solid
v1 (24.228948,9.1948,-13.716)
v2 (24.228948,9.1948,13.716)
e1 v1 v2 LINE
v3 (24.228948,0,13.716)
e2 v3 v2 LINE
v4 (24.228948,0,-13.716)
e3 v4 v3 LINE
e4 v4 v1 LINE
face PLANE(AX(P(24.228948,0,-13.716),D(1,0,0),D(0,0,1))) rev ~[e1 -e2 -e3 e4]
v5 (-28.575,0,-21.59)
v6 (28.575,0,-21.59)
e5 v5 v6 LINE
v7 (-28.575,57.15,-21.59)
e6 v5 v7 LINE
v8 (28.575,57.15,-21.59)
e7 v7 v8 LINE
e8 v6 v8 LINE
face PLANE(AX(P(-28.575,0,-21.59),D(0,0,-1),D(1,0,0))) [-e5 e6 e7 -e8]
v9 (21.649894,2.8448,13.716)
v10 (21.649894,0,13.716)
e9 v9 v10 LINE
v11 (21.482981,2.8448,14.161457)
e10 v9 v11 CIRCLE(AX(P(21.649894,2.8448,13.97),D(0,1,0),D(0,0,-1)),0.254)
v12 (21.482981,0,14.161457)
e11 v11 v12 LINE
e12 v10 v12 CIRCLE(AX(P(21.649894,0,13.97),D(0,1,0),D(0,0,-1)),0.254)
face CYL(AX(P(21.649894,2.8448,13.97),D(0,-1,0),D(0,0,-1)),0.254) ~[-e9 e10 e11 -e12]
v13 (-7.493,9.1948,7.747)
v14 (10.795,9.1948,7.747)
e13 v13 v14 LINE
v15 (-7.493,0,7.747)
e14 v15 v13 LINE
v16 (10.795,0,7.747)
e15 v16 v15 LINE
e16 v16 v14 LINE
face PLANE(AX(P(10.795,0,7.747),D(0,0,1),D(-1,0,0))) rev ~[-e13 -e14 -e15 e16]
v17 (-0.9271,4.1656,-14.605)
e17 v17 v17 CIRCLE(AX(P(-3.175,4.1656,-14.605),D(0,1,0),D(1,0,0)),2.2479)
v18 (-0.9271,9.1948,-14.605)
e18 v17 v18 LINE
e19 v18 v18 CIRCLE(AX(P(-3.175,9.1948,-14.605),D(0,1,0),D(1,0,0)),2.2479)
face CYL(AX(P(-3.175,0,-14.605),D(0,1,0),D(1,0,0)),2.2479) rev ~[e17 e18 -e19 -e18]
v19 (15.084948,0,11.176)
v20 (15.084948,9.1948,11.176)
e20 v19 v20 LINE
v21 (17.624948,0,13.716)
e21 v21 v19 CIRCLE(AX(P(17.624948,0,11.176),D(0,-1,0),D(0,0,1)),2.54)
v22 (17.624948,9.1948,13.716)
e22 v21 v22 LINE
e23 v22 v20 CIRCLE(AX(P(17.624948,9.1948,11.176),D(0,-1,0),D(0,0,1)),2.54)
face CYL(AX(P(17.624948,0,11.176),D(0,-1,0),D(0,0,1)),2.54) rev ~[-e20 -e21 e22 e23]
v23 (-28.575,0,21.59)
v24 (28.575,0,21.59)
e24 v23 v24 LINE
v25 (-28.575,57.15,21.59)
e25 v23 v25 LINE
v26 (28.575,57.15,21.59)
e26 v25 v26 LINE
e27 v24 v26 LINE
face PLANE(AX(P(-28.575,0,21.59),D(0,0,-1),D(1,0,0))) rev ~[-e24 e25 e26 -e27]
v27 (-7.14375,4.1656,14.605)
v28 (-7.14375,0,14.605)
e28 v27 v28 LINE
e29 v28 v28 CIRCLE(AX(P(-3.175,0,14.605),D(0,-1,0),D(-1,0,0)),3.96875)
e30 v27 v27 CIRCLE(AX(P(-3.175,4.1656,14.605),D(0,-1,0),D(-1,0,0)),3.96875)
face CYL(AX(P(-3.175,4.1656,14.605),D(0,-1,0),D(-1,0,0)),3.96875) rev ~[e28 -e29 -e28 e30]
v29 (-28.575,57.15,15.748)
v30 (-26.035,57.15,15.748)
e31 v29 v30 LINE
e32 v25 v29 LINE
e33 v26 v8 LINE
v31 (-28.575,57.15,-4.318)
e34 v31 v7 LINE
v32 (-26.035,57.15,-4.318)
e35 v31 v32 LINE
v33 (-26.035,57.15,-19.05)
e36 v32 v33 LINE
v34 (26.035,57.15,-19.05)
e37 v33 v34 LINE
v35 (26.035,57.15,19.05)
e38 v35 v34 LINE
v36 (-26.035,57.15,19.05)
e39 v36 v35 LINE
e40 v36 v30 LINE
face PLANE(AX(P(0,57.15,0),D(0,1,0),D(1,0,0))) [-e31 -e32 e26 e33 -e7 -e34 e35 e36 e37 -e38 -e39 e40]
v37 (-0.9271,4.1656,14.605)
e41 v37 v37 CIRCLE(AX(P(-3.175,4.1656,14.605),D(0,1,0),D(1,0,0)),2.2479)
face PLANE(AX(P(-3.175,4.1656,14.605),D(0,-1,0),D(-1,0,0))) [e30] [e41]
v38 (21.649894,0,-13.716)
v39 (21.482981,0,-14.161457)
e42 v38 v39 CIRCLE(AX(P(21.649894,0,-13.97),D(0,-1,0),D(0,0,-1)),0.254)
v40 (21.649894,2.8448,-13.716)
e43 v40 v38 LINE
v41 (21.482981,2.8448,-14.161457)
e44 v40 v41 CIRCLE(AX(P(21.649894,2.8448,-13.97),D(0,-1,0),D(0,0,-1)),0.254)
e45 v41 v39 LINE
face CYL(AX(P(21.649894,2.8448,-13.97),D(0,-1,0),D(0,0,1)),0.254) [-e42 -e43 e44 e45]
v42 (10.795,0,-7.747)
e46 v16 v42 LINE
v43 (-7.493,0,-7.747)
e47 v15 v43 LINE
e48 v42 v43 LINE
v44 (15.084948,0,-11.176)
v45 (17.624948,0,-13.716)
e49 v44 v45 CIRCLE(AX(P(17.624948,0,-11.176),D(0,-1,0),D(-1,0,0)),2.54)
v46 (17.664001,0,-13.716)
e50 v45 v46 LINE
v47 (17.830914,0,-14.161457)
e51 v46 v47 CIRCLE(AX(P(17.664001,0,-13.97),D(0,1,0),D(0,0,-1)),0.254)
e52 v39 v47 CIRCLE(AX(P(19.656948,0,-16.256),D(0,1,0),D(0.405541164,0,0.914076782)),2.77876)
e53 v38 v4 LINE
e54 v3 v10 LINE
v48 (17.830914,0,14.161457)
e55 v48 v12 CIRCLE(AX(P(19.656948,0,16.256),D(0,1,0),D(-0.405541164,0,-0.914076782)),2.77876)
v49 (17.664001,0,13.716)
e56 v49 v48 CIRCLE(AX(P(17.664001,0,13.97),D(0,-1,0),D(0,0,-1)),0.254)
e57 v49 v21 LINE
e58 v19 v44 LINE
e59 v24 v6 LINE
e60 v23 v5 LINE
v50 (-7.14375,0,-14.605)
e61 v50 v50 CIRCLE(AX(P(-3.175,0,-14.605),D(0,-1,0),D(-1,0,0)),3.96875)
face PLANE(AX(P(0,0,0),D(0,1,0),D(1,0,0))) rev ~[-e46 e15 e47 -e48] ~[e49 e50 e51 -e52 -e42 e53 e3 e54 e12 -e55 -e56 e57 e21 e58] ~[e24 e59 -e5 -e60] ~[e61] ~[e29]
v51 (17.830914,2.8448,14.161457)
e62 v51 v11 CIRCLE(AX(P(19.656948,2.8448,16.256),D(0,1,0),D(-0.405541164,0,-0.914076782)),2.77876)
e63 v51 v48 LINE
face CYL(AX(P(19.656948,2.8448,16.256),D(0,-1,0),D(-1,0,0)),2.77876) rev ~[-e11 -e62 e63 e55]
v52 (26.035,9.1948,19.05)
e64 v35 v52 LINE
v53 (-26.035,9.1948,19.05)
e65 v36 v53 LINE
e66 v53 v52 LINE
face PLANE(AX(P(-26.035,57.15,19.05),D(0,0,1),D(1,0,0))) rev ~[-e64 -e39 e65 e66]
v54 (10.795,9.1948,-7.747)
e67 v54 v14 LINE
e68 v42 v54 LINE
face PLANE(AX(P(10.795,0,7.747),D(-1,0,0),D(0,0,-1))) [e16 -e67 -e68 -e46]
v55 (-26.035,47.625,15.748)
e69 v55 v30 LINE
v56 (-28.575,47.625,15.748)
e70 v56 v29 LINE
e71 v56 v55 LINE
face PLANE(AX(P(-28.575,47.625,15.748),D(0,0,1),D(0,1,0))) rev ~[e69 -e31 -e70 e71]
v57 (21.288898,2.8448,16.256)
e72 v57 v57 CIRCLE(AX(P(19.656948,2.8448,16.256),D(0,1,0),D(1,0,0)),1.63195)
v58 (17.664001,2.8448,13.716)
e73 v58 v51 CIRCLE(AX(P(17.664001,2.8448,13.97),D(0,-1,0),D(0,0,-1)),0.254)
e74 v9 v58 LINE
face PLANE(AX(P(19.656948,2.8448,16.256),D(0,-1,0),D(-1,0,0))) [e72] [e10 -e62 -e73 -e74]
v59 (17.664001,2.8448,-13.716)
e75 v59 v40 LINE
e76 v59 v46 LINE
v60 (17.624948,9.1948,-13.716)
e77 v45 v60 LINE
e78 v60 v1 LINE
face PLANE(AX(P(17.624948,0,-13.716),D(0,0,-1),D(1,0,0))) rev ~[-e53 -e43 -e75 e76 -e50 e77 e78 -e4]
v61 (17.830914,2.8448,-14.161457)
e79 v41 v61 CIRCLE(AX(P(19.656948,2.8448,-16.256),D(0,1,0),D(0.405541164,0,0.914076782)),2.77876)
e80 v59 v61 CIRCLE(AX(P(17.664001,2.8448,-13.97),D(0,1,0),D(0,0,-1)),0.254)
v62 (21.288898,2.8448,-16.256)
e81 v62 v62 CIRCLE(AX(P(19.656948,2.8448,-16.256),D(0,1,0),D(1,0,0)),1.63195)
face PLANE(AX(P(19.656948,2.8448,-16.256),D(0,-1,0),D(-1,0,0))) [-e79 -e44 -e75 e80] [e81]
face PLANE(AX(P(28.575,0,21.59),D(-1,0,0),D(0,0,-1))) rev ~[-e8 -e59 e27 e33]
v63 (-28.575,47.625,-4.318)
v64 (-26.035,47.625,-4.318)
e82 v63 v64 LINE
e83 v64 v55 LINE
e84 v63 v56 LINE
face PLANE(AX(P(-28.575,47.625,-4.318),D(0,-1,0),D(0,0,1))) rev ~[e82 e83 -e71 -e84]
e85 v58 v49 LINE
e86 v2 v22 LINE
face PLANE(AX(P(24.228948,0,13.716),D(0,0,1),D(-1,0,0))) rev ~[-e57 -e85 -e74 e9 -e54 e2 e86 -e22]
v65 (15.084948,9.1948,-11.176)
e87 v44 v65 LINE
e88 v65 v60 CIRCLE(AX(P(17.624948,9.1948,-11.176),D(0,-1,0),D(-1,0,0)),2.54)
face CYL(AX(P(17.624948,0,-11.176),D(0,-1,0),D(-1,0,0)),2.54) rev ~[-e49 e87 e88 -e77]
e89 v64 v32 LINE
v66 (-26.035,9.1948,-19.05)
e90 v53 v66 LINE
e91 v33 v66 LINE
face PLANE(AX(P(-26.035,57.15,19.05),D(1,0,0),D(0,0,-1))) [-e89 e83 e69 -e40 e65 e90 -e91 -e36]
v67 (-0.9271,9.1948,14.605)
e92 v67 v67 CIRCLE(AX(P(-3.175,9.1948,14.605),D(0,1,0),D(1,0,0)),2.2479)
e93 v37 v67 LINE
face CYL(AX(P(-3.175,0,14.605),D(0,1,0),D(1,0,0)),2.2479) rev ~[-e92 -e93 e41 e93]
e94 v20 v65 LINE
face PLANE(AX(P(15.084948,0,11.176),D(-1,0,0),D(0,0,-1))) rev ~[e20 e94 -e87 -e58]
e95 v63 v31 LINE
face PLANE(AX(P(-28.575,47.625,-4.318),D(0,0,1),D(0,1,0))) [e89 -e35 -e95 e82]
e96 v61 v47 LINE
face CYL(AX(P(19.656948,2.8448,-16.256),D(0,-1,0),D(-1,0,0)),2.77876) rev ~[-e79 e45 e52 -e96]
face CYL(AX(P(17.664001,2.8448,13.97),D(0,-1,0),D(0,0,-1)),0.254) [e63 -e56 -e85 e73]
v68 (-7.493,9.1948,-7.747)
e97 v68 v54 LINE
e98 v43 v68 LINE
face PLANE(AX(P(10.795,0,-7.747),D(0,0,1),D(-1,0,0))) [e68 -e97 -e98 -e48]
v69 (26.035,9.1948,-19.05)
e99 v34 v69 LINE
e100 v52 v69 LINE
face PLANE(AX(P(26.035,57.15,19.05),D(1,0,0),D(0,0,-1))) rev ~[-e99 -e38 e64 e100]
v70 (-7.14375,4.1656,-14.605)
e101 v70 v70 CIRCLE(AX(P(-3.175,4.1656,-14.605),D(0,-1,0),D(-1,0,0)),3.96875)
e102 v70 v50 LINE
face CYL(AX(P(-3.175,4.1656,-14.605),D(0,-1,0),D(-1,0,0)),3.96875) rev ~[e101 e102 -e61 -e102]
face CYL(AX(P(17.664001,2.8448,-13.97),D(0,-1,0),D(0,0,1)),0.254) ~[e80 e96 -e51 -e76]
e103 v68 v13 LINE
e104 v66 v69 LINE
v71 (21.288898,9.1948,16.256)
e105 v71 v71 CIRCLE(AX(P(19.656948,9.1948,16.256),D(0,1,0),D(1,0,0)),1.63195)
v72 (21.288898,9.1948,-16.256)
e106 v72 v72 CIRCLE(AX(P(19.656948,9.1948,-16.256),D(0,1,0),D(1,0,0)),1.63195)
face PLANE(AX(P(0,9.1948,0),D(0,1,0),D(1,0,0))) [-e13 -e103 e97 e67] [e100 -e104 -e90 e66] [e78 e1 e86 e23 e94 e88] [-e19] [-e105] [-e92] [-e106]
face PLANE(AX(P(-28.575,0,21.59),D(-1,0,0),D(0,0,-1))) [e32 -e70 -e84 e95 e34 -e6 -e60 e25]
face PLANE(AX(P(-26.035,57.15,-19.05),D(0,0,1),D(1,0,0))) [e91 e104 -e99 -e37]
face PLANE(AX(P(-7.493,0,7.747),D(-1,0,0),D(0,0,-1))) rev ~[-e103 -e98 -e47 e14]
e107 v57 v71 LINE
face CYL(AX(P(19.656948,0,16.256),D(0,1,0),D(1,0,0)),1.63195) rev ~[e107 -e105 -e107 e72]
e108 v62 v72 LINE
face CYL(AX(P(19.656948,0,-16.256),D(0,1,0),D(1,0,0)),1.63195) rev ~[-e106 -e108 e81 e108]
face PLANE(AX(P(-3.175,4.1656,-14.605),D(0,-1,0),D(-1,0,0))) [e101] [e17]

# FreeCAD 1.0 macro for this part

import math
import FreeCAD as App
import Part
import Sketcher
from FreeCAD import Vector
Q = App.Units.Quantity


def edges_at(feature, points):
    """Names of the edges that pass closest to the given points."""
    edges = feature.Shape.Edges
    near = lambda p: min(range(len(edges)), key=lambda i: edges[i].distToShape(Part.Vertex(*p))[0])
    return sorted({f"Edge{near(p) + 1}" for p in points})

doc = App.newDocument("Part")
body = doc.addObject("PartDesign::Body", "Body")

sketch1 = body.newObject("Sketcher::SketchObject", "Sketch")
sketch1.AttachmentSupport = (doc.getObject("XZ_Plane"), [""])
sketch1.MapMode = "FlatFace"
sketch1.addGeometry([
    Part.LineSegment(Vector(-28.575, -21.59, 0), Vector(-28.575, 21.59, 0)),
    Part.LineSegment(Vector(-28.575, 21.59, 0), Vector(28.575, 21.59, 0)),
    Part.LineSegment(Vector(28.575, 21.59, 0), Vector(28.575, -21.59, 0)),
    Part.LineSegment(Vector(28.575, -21.59, 0), Vector(-28.575, -21.59, 0)),
], False)
sketch1.addConstraint([
    Sketcher.Constraint("Coincident", 0, 2, 1, 1),
    Sketcher.Constraint("Coincident", 1, 2, 2, 1),
    Sketcher.Constraint("Coincident", 2, 2, 3, 1),
    Sketcher.Constraint("Coincident", 3, 2, 0, 1),
    Sketcher.Constraint("Vertical", 0),
    Sketcher.Constraint("Horizontal", 1),
    Sketcher.Constraint("Vertical", 2),
    Sketcher.Constraint("Horizontal", 3),
    Sketcher.Constraint("Symmetric", 0, 2, 2, 2, -1, 1),
    Sketcher.Constraint("DistanceY", 0, 1, 0, 2, Q("1.7 in")),
    Sketcher.Constraint("DistanceX", 1, 1, 1, 2, Q("2.25 in")),
])
pad1 = body.newObject("PartDesign::Pad", "Pad")
pad1.Profile = sketch1
pad1.Length = Q("2.25 in")
pad1.Reversed = True

sketch2 = body.newObject("Sketcher::SketchObject", "Sketch001")
sketch2.AttachmentSupport = (doc.getObject("XZ_Plane"), [""])
sketch2.MapMode = "FlatFace"
sketch2.AttachmentOffset = App.Placement(Vector(0, 0, -2.25 * 25.4), App.Rotation())
sketch2.addGeometry([
    Part.LineSegment(Vector(-26.035, -19.05, 0), Vector(-26.035, 19.05, 0)),
    Part.LineSegment(Vector(-26.035, 19.05, 0), Vector(26.035, 19.05, 0)),
    Part.LineSegment(Vector(26.035, 19.05, 0), Vector(26.035, -19.05, 0)),
    Part.LineSegment(Vector(26.035, -19.05, 0), Vector(-26.035, -19.05, 0)),
], False)
sketch2.addConstraint([
    Sketcher.Constraint("Coincident", 0, 2, 1, 1),
    Sketcher.Constraint("Coincident", 1, 2, 2, 1),
    Sketcher.Constraint("Coincident", 2, 2, 3, 1),
    Sketcher.Constraint("Coincident", 3, 2, 0, 1),
    Sketcher.Constraint("Vertical", 0),
    Sketcher.Constraint("Horizontal", 1),
    Sketcher.Constraint("Vertical", 2),
    Sketcher.Constraint("Horizontal", 3),
    Sketcher.Constraint("Symmetric", 0, 2, 2, 2, -1, 1),
    Sketcher.Constraint("DistanceY", 0, 1, 0, 2, Q("1.5 in")),
    Sketcher.Constraint("DistanceX", 1, 1, 1, 2, Q("2.05 in")),
])
pocket1 = body.newObject("PartDesign::Pocket", "Pocket")
pocket1.Profile = sketch2
pocket1.Length = Q("1.888 in")
pocket1.Reversed = True

sketch3 = body.newObject("Sketcher::SketchObject", "Sketch002")
sketch3.AttachmentSupport = (doc.getObject("XZ_Plane"), [""])
sketch3.MapMode = "FlatFace"
sketch3.addGeometry([
    Part.LineSegment(Vector(10.795, -7.747, 0), Vector(10.795, 7.747, 0)),
    Part.LineSegment(Vector(10.795, 7.747, 0), Vector(-7.493, 7.747, 0)),
    Part.LineSegment(Vector(-7.493, 7.747, 0), Vector(-7.493, -7.747, 0)),
    Part.LineSegment(Vector(-7.493, -7.747, 0), Vector(10.795, -7.747, 0)),
], False)
sketch3.addConstraint([
    Sketcher.Constraint("Coincident", 0, 2, 1, 1),
    Sketcher.Constraint("Coincident", 1, 2, 2, 1),
    Sketcher.Constraint("Coincident", 2, 2, 3, 1),
    Sketcher.Constraint("Coincident", 3, 2, 0, 1),
    Sketcher.Constraint("Vertical", 0),
    Sketcher.Constraint("Horizontal", 1),
    Sketcher.Constraint("Vertical", 2),
    Sketcher.Constraint("Horizontal", 3),
    Sketcher.Constraint("DistanceX", 1, 2, 1, 1, Q("0.72 in")),
    Sketcher.Constraint("DistanceY", 0, 1, 0, 2, Q("0.61 in")),
    Sketcher.Constraint("DistanceX", -1, 1, 0, 2, Q("0.425 in")),
    Sketcher.Constraint("DistanceY", -1, 1, 0, 2, Q("0.305 in")),
])
pocket2 = body.newObject("PartDesign::Pocket", "Pocket001")
pocket2.Profile = sketch3
pocket2.Type = "ThroughAll"

sketch4 = body.newObject("Sketcher::SketchObject", "Sketch003")
sketch4.AttachmentSupport = (doc.getObject("YZ_Plane"), [""])
sketch4.MapMode = "FlatFace"
sketch4.AttachmentOffset = App.Placement(Vector(0, 0, -1.125 * 25.4), App.Rotation())
sketch4.addGeometry([
    Part.LineSegment(Vector(57.15, -4.318, 0), Vector(47.625, -4.318, 0)),
    Part.LineSegment(Vector(47.625, -4.318, 0), Vector(47.625, 15.748, 0)),
    Part.LineSegment(Vector(47.625, 15.748, 0), Vector(57.15, 15.748, 0)),
    Part.LineSegment(Vector(57.15, 15.748, 0), Vector(57.15, -4.318, 0)),
], False)
sketch4.addConstraint([
    Sketcher.Constraint("Coincident", 0, 2, 1, 1),
    Sketcher.Constraint("Coincident", 1, 2, 2, 1),
    Sketcher.Constraint("Coincident", 2, 2, 3, 1),
    Sketcher.Constraint("Coincident", 3, 2, 0, 1),
    Sketcher.Constraint("Horizontal", 0),
    Sketcher.Constraint("Vertical", 1),
    Sketcher.Constraint("Horizontal", 2),
    Sketcher.Constraint("Vertical", 3),
    Sketcher.Constraint("DistanceY", 1, 1, 1, 2, Q("0.79 in")),
    Sketcher.Constraint("DistanceX", 0, 2, 0, 1, Q("0.375 in")),
    Sketcher.Constraint("DistanceY", 0, 2, -1, 1, Q("0.17 in")),
    Sketcher.Constraint("DistanceX", -1, 1, 2, 2, Q("2.25 in")),
])
pocket3 = body.newObject("PartDesign::Pocket", "Pocket002")
pocket3.Profile = sketch4
pocket3.Type = "UpToFirst"
pocket3.Reversed = True

sketch5 = body.newObject("Sketcher::SketchObject", "Sketch004")
sketch5.AttachmentSupport = (doc.getObject("XZ_Plane"), [""])
sketch5.MapMode = "FlatFace"
sketch5.addGeometry([
    Part.LineSegment(Vector(17.624948, -13.716, 0), Vector(24.228948, -13.716, 0)),
    Part.LineSegment(Vector(24.228948, -13.716, 0), Vector(24.228948, 13.716, 0)),
    Part.LineSegment(Vector(24.228948, 13.716, 0), Vector(17.624948, 13.716, 0)),
    Part.ArcOfCircle(Part.Circle(Vector(17.624948, 11.176, 0), Vector(0, 0, 1), 2.54), math.radians(90), math.radians(180)),
    Part.LineSegment(Vector(15.084948, 11.176, 0), Vector(15.084948, -11.176, 0)),
    Part.ArcOfCircle(Part.Circle(Vector(17.624948, -11.176, 0), Vector(0, 0, 1), 2.54), math.radians(-180), math.radians(-90)),
], False)
sketch5.addConstraint([
    Sketcher.Constraint("Coincident", 0, 2, 1, 1),
    Sketcher.Constraint("Coincident", 1, 2, 2, 1),
    Sketcher.Constraint("Tangent", 2, 2, 3, 1),
    Sketcher.Constraint("Tangent", 3, 2, 4, 1),
    Sketcher.Constraint("Tangent", 4, 2, 5, 1),
    Sketcher.Constraint("Tangent", 5, 2, 0, 1),
    Sketcher.Constraint("Horizontal", 0),
    Sketcher.Constraint("Vertical", 1),
    Sketcher.Constraint("Horizontal", 2),
    Sketcher.Constraint("Vertical", 4),
    Sketcher.Constraint("Equal", 3, 5),
    Sketcher.Constraint("Radius", 3, Q("0.1 in")),
    Sketcher.Constraint("DistanceX", 0, 1, 0, 2, Q("0.26 in")),
    Sketcher.Constraint("DistanceY", 1, 1, 1, 2, Q("1.08 in")),
    Sketcher.Constraint("DistanceY", -1, 1, 3, 3, Q("0.44 in")),
    Sketcher.Constraint("DistanceX", -1, 1, 3, 3, 17.624948),
])
pocket4 = body.newObject("PartDesign::Pocket", "Pocket003")
pocket4.Profile = sketch5
pocket4.Type = "UpToFirst"

sketch6 = body.newObject("Sketcher::SketchObject", "Sketch005")
sketch6.AttachmentSupport = (doc.getObject("XZ_Plane"), [""])
sketch6.MapMode = "FlatFace"
sketch6.addGeometry([
    Part.Circle(Vector(19.656948, -16.256, 0), Vector(0, 0, 1), 1.63195),
    Part.Circle(Vector(19.656948, 16.256, 0), Vector(0, 0, 1), 1.63195),
], False)
sketch6.addConstraint([
    Sketcher.Constraint("Equal", 0, 1),
    Sketcher.Constraint("Symmetric", 0, 3, 1, 3, -1),
    Sketcher.Constraint("Diameter", 0, Q("0.1285 in")),
    Sketcher.Constraint("DistanceY", 0, 3, -1, 1, Q("0.64 in")),
    Sketcher.Constraint("DistanceX", -1, 1, 0, 3, 19.656948),
])
doc.recompute()
hole = body.newObject("PartDesign::Hole", "Hole")
hole.Profile = sketch6
hole.ThreadType = "None"
hole.Diameter = Q("0.1285 in")
hole.DepthType = "ThroughAll"
hole.HoleCutType = "Counterbore"
hole.HoleCutDiameter = Q("0.2188 in")
hole.HoleCutDepth = Q("0.112 in")

sketch7 = body.newObject("Sketcher::SketchObject", "Sketch006")
sketch7.AttachmentSupport = (doc.getObject("XZ_Plane"), [""])
sketch7.MapMode = "FlatFace"
sketch7.addGeometry([
    Part.Circle(Vector(-3.175, -14.605, 0), Vector(0, 0, 1), 2.2479),
    Part.Circle(Vector(-3.175, 14.605, 0), Vector(0, 0, 1), 2.2479),
], False)
sketch7.addConstraint([
    Sketcher.Constraint("Equal", 0, 1),
    Sketcher.Constraint("Symmetric", 0, 3, 1, 3, -1),
    Sketcher.Constraint("Diameter", 0, Q("0.177 in")),
    Sketcher.Constraint("DistanceY", 0, 3, 1, 3, Q("1.15 in")),
    Sketcher.Constraint("DistanceX", 0, 3, -1, 1, Q("0.125 in")),
])
doc.recompute()
hole2 = body.newObject("PartDesign::Hole", "Hole001")
hole2.Profile = sketch7
hole2.ThreadType = "None"
hole2.Diameter = Q("0.177 in")
hole2.DepthType = "ThroughAll"
hole2.HoleCutType = "Counterbore"
hole2.HoleCutDiameter = Q("0.3125 in")
hole2.HoleCutDepth = Q("0.164 in")
doc.recompute()

fillet = body.newObject("PartDesign::Fillet", "Fillet")
fillet.Base = (hole2, edges_at(hole2, [
    (20.784, 1.422, 13.716),
    (18.53, 1.422, 13.716),
    (18.53, 1.422, -13.716),
    (20.784, 1.422, -13.716),
]))
fillet.Radius = Q("0.01 in")

doc.recompute()
